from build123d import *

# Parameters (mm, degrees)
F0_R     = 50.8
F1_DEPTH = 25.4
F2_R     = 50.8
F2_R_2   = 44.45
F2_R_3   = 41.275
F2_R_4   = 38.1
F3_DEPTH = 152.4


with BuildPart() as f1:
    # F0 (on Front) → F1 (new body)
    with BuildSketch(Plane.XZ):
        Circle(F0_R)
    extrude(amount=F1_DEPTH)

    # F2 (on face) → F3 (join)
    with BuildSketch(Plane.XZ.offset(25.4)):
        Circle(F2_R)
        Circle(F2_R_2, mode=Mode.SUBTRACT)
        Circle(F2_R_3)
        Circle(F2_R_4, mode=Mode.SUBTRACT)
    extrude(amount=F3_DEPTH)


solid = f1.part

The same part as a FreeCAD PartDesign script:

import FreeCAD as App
import Part
import Sketcher
Q = App.Units.Quantity

doc = App.newDocument("Part")
body = doc.addObject("PartDesign::Body", "Body")

# Sketch on XZ plane
sketch1 = body.newObject("Sketcher::SketchObject", "Sketch")
sketch1.AttachmentSupport = (doc.getObject("XZ_Plane"), [""])
sketch1.MapMode = "FlatFace"
sketch1.addGeometry(Part.Circle(App.Vector(0, 0, 0), App.Vector(0, 0, 1), 51), False)
sketch1.addConstraint([
    Sketcher.Constraint("Coincident", 0, 3, -1, 1),
    Sketcher.Constraint("Diameter", 0, Q("4 in")),
])
pad1 = body.newObject("PartDesign::Pad", "Pad")
pad1.Profile = sketch1
pad1.Length = Q("1 in")

# Sketch on XZ plane
sketch2 = body.newObject("Sketcher::SketchObject", "Sketch001")
sketch2.AttachmentSupport = (doc.getObject("XZ_Plane"), [""])
sketch2.MapMode = "FlatFace"
sketch2.AttachmentOffset = App.Placement(App.Vector(0, 0, 1 * 25.4), App.Rotation())
sketch2.addGeometry([
    Part.Circle(App.Vector(0, 0, 0), App.Vector(0, 0, 1), 51),
    Part.Circle(App.Vector(0, 0, 0), App.Vector(0, 0, 1), 44),
    Part.Circle(App.Vector(0, 0, 0), App.Vector(0, 0, 1), 41),
    Part.Circle(App.Vector(0, 0, 0), App.Vector(0, 0, 1), 38),
], False)
sketch2.addConstraint([
    Sketcher.Constraint("Coincident", 0, 3, -1, 1),
    Sketcher.Constraint("Coincident", 1, 3, -1, 1),
    Sketcher.Constraint("Coincident", 2, 3, -1, 1),
    Sketcher.Constraint("Coincident", 3, 3, -1, 1),
    Sketcher.Constraint("Diameter", 0, Q("4 in")),
    Sketcher.Constraint("Diameter", 3, Q("3 in")),
    Sketcher.Constraint("Diameter", 1, Q("3.5 in")),
    Sketcher.Constraint("Diameter", 2, Q("3.25 in")),
])
pad2 = body.newObject("PartDesign::Pad", "Pad001")
pad2.Profile = sketch2
pad2.Length = Q("6 in")

doc.recompute()
